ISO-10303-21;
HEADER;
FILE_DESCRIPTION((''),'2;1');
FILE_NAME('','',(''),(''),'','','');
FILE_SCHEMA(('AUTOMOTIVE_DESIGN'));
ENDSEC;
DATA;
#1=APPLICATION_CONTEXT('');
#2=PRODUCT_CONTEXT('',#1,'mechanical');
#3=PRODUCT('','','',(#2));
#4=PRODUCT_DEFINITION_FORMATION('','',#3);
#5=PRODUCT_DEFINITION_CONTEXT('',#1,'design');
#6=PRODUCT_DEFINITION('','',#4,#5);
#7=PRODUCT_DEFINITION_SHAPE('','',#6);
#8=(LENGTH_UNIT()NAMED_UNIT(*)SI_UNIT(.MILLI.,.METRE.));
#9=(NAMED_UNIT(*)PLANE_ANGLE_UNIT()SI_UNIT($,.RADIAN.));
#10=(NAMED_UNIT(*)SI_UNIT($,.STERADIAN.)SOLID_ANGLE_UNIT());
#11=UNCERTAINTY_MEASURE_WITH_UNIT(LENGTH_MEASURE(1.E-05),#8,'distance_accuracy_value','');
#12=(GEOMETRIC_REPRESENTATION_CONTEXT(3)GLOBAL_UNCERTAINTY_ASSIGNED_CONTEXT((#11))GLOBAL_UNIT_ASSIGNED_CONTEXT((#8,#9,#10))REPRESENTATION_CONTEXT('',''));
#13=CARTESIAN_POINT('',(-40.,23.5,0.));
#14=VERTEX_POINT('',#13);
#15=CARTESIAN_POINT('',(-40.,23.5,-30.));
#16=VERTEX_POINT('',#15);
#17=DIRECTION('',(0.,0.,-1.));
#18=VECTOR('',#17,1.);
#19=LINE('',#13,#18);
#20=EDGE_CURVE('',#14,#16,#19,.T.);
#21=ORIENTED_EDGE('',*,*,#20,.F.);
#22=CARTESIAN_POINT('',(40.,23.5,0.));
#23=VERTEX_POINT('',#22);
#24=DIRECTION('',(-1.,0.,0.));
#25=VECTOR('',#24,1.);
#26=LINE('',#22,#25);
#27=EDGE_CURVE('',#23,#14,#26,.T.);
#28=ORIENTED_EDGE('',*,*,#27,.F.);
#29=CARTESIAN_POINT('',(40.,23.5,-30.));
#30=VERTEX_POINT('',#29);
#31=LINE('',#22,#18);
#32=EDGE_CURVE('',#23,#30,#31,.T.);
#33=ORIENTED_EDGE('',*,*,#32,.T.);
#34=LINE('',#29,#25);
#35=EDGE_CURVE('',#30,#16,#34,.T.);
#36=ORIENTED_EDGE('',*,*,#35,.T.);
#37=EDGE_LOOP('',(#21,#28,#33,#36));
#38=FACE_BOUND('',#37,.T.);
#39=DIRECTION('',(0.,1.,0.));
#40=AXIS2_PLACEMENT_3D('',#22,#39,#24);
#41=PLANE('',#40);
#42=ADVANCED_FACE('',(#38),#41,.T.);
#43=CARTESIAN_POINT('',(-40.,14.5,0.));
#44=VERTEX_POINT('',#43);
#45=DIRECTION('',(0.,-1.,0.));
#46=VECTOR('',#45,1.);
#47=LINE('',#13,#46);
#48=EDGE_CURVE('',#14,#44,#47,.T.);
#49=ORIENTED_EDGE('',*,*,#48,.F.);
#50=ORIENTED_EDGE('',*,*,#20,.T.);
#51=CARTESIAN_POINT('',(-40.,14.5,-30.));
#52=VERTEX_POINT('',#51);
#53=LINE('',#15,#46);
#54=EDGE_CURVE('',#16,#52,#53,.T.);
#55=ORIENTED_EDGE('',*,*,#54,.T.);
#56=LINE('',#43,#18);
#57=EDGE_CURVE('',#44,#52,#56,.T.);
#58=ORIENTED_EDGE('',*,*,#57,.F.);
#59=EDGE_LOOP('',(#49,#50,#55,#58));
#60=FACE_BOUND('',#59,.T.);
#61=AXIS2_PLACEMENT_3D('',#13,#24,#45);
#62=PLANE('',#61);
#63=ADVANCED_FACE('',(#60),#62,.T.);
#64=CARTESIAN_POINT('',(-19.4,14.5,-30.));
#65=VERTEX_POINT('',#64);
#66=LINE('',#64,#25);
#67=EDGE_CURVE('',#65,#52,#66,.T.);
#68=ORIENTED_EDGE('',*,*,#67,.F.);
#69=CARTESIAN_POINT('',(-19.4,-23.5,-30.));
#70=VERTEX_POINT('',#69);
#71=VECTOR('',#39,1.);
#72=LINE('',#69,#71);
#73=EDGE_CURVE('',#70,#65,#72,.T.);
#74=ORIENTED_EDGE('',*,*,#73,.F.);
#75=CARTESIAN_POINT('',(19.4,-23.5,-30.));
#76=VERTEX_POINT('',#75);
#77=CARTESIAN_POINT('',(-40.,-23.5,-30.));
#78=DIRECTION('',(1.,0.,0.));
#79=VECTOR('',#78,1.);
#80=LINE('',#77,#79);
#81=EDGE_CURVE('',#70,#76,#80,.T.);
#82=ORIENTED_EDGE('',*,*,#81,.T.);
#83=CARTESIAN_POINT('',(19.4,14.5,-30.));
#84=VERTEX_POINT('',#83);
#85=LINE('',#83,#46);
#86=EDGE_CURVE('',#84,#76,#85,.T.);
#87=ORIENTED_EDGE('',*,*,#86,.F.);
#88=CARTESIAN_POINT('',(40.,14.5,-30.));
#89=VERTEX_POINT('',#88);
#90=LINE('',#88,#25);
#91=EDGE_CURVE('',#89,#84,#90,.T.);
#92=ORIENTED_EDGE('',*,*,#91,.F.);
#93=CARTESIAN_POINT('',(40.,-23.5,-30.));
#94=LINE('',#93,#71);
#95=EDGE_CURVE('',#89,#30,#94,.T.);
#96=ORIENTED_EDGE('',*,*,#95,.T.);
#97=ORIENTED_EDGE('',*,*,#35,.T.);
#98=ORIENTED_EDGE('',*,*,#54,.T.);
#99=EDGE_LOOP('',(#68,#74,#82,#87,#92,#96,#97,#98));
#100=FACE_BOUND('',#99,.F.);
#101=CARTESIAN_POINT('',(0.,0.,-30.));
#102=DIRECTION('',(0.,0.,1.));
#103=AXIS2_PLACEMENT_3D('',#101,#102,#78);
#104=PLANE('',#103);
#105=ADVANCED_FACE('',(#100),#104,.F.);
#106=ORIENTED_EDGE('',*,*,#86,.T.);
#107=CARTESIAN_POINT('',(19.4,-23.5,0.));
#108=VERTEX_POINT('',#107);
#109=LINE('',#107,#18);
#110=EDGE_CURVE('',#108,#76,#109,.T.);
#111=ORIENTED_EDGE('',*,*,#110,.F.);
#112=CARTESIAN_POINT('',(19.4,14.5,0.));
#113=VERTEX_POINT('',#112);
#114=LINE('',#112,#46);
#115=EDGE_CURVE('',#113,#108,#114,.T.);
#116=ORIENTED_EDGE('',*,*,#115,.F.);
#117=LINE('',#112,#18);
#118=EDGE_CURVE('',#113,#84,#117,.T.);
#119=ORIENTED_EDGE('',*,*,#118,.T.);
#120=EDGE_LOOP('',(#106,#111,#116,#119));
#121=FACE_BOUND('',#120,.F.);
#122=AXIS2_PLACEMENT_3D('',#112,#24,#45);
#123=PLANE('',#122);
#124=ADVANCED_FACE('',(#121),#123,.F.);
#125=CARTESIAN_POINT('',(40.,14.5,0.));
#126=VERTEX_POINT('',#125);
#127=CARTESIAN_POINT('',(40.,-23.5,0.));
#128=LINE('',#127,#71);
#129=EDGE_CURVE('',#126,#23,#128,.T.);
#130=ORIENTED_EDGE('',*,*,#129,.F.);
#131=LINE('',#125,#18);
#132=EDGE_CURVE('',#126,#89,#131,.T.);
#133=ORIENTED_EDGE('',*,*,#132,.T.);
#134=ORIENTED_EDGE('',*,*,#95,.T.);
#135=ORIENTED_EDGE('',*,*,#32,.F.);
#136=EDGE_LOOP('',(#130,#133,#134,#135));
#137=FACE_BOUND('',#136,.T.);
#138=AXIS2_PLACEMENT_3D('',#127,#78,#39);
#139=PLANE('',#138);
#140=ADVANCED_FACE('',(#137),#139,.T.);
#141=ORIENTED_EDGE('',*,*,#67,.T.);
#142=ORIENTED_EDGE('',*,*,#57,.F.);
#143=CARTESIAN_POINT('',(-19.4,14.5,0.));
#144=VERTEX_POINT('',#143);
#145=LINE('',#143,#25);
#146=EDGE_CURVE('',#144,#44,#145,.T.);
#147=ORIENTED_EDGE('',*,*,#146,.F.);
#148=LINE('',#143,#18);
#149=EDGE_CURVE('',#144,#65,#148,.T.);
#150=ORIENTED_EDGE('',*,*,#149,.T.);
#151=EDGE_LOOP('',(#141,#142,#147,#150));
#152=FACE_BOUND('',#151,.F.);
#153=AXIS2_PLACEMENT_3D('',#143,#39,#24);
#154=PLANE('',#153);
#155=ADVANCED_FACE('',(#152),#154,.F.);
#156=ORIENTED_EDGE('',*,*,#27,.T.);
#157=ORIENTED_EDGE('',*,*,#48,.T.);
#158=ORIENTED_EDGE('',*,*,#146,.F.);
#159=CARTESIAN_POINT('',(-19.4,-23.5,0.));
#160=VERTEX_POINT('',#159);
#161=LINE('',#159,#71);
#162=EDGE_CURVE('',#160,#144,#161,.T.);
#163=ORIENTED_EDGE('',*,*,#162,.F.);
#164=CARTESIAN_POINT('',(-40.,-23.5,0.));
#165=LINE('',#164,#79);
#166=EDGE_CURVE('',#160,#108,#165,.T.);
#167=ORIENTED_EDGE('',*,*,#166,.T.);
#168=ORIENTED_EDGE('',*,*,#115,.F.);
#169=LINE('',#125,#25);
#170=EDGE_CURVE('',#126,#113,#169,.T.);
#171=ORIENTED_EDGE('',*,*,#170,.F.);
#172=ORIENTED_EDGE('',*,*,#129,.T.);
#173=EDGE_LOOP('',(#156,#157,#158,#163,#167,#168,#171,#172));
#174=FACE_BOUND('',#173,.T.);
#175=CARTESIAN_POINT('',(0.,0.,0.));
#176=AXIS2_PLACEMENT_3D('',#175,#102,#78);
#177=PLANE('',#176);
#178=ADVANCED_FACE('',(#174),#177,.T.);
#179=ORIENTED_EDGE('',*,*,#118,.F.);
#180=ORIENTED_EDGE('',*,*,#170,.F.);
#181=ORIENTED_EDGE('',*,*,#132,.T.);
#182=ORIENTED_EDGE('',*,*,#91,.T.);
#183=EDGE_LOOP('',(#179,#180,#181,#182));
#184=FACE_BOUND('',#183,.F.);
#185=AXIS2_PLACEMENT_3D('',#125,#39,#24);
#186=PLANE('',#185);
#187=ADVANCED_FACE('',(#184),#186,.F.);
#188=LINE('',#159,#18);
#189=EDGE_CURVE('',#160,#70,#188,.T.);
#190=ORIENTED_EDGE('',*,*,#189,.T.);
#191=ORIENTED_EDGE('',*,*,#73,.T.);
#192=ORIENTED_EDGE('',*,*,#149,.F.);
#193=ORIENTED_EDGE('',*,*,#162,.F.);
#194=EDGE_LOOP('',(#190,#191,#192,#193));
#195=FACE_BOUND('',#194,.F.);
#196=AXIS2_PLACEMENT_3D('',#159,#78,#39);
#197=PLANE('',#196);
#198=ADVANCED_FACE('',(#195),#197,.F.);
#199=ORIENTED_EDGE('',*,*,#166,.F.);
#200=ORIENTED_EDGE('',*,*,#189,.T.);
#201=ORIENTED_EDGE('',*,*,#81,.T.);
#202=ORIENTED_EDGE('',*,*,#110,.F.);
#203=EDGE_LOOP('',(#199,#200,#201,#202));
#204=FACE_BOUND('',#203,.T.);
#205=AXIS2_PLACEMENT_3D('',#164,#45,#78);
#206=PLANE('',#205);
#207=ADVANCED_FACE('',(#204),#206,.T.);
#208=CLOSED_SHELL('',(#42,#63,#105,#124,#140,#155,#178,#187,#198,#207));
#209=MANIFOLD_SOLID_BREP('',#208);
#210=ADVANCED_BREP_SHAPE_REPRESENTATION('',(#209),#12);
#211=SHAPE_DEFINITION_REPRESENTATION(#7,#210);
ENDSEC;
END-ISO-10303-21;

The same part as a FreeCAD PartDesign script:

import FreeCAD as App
import Part
import Sketcher
from FreeCAD import Vector
Q = App.Units.Quantity

doc = App.newDocument("Part")
params = doc.addObject("Spreadsheet::Sheet", "Params")
for row, (alias, value) in enumerate([
    ("sketch1_width", "80 mm"),
    ("sketch1_height", "47 mm"),
    ("pad1_length", "30 mm"),
    ("sketch2_height", "38 mm"),
    ("sketch2_width", "20.6 mm"),
    ("pocket1_length", "30 mm"),
], start=1):
    params.set(f"A{row}", alias)
    params.set(f"B{row}", "=" + value)
    params.setAlias(f"B{row}", alias)

body = doc.addObject("PartDesign::Body", "Body")

# Sketch on XY plane
sketch1 = body.newObject("Sketcher::SketchObject", "Sketch")
sketch1.AttachmentSupport = (doc.getObject("XY_Plane"), [""])
sketch1.MapMode = "FlatFace"
sketch1.addGeometry([
    Part.LineSegment(Vector(-40, 24, 0), Vector(-40, -24, 0)),
    Part.LineSegment(Vector(-40, -24, 0), Vector(40, -24, 0)),
    Part.LineSegment(Vector(40, -24, 0), Vector(40, 24, 0)),
    Part.LineSegment(Vector(40, 24, 0), Vector(-40, 24, 0)),
], False)
sketch1.addConstraint([
    Sketcher.Constraint("Coincident", 0, 2, 1, 1),
    Sketcher.Constraint("Coincident", 1, 2, 2, 1),
    Sketcher.Constraint("Coincident", 2, 2, 3, 1),
    Sketcher.Constraint("Coincident", 3, 2, 0, 1),
    Sketcher.Constraint("Vertical", 0),
    Sketcher.Constraint("Horizontal", 1),
    Sketcher.Constraint("Vertical", 2),
    Sketcher.Constraint("Horizontal", 3),
    Sketcher.Constraint("Symmetric", 0, 2, 2, 2, -1, 1),
    Sketcher.Constraint("DistanceX", 1, 1, 1, 2, Q("80 mm")),
    Sketcher.Constraint("DistanceY", 0, 2, 0, 1, Q("47 mm")),
])
sketch1.setExpression("Constraints[9]", "Params.sketch1_width")
sketch1.setExpression("Constraints[10]", "Params.sketch1_height")
pad1 = body.newObject("PartDesign::Pad", "Pad")
pad1.Profile = sketch1
pad1.setExpression("Length", "Params.pad1_length")
pad1.Reversed = True

# Sketch on XY plane
sketch2 = body.newObject("Sketcher::SketchObject", "Sketch001")
sketch2.AttachmentSupport = (doc.getObject("XY_Plane"), [""])
sketch2.MapMode = "FlatFace"
sketch2.addGeometry([
    Part.LineSegment(Vector(-40, 14, 0), Vector(-40, -24, 0)),  # 0
    Part.LineSegment(Vector(-40, -24, 0), Vector(-19, -24, 0)),  # 1
    Part.LineSegment(Vector(-19, -24, 0), Vector(-19, 14, 0)),  # 2
    Part.LineSegment(Vector(-19, 14, 0), Vector(-40, 14, 0)),  # 3
    Part.LineSegment(Vector(40, -24, 0), Vector(40, 14, 0)),  # 4
    Part.LineSegment(Vector(40, 14, 0), Vector(19, 14, 0)),  # 5
    Part.LineSegment(Vector(19, 14, 0), Vector(19, -24, 0)),  # 6
    Part.LineSegment(Vector(19, -24, 0), Vector(40, -24, 0)),  # 7
], False)
sketch2.addConstraint([
    Sketcher.Constraint("Coincident", 0, 2, 1, 1),
    Sketcher.Constraint("Coincident", 1, 2, 2, 1),
    Sketcher.Constraint("Coincident", 2, 2, 3, 1),
    Sketcher.Constraint("Coincident", 3, 2, 0, 1),
    Sketcher.Constraint("Coincident", 4, 2, 5, 1),
    Sketcher.Constraint("Coincident", 5, 2, 6, 1),
    Sketcher.Constraint("Coincident", 6, 2, 7, 1),
    Sketcher.Constraint("Coincident", 7, 2, 4, 1),
    Sketcher.Constraint("Vertical", 0),
    Sketcher.Constraint("Horizontal", 1),
    Sketcher.Constraint("Vertical", 2),
    Sketcher.Constraint("Horizontal", 3),
    Sketcher.Constraint("Vertical", 4),
    Sketcher.Constraint("Horizontal", 5),
    Sketcher.Constraint("Vertical", 6),
    Sketcher.Constraint("Horizontal", 7),
    Sketcher.Constraint("Symmetric", 3, 2, 4, 2, -2),
    Sketcher.Constraint("Symmetric", 1, 2, 6, 2, -2),
    Sketcher.Constraint("DistanceY", 0, 2, 0, 1, Q("38 mm")),
    Sketcher.Constraint("DistanceX", 1, 1, 1, 2, Q("20.6 mm")),
    Sketcher.Constraint("DistanceX", 0, 2, -1, 1, Q("40 mm")),
    Sketcher.Constraint("DistanceY", 0, 2, -1, 1, Q("23.5 mm")),
])
sketch2.setExpression("Constraints[18]", "Params.sketch2_height")
sketch2.setExpression("Constraints[19]", "Params.sketch2_width")
pocket1 = body.newObject("PartDesign::Pocket", "Pocket")
pocket1.Profile = sketch2
pocket1.setExpression("Length", "Params.pocket1_length")

doc.recompute()
